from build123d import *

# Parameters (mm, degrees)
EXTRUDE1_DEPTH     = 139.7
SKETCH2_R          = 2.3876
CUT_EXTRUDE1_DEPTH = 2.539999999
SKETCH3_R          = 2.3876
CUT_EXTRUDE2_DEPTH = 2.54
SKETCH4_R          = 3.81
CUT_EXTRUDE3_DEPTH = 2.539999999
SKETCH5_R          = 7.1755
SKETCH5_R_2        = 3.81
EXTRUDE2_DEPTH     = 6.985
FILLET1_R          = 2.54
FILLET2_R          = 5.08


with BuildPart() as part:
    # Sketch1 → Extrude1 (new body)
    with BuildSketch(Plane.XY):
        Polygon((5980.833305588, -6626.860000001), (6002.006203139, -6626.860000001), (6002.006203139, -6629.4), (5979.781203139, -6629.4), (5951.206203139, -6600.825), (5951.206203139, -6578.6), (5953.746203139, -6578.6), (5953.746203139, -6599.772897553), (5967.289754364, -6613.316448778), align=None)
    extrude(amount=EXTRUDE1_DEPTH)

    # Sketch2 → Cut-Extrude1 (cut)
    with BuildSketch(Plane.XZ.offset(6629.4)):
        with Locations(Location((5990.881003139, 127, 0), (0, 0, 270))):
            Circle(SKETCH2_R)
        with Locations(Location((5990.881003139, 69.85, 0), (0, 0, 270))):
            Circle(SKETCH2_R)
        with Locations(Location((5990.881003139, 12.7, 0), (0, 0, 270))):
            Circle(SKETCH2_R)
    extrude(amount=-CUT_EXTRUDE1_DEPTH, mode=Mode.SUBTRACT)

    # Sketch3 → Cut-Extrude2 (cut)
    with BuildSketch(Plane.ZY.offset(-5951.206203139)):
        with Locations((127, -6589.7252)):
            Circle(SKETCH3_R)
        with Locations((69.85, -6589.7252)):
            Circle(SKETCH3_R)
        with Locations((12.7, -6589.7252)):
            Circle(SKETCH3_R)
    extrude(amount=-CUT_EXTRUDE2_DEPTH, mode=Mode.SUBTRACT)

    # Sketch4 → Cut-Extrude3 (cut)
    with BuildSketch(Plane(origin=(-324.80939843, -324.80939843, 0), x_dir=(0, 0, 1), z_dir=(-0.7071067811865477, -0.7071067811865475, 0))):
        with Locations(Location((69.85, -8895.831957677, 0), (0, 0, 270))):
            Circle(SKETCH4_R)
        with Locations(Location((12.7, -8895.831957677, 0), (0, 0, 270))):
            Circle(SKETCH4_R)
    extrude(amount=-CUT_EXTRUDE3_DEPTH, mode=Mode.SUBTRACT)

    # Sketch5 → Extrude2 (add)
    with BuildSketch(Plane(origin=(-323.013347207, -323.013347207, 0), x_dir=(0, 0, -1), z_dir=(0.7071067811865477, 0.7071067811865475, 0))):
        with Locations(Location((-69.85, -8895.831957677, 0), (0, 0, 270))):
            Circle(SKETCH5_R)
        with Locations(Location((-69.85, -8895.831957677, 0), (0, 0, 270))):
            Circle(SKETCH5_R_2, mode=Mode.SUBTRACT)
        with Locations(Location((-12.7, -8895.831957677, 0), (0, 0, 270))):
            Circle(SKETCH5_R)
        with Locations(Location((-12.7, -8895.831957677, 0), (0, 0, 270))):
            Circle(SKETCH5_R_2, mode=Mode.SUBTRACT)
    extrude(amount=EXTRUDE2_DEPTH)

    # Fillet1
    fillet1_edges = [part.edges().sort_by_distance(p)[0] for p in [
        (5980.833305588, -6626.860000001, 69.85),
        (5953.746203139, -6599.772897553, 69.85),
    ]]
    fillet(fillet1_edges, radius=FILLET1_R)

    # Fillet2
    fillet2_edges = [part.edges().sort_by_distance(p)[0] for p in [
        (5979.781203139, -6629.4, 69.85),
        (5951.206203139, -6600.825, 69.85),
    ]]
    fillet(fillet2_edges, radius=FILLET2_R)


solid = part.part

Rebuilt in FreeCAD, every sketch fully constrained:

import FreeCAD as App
import Part
import Sketcher
from FreeCAD import Vector
Q = App.Units.Quantity


def edges_at(feature, points):
    """Names of the edges that pass closest to the given points."""
    edges = feature.Shape.Edges
    near = lambda p: min(range(len(edges)), key=lambda i: edges[i].distToShape(Part.Vertex(*p))[0])
    return sorted({f"Edge{near(p) + 1}" for p in points})

doc = App.newDocument("Part")
body = doc.addObject("PartDesign::Body", "Body")

sketch1 = body.newObject("Sketcher::SketchObject", "Sketch")
sketch1.AttachmentSupport = (doc.getObject("XY_Plane"), [""])
sketch1.MapMode = "FlatFace"
sketch1.addGeometry(Part.LineSegment(Vector(6002, -6626.9, 0), Vector(5980.8, -6626.9, 0)), False)
sketch1.addGeometry(Part.LineSegment(Vector(5980.8, -6626.9, 0), Vector(5967.3, -6613.3, 0)), False)
sketch1.addGeometry(Part.LineSegment(Vector(5967.3, -6613.3, 0), Vector(5953.7, -6599.8, 0)), False)
sketch1.addGeometry(Part.LineSegment(Vector(5953.7, -6599.8, 0), Vector(5953.7, -6578.6, 0)), False)
sketch1.addGeometry(Part.LineSegment(Vector(5953.7, -6578.6, 0), Vector(5951.2, -6578.6, 0)), False)
sketch1.addGeometry(Part.LineSegment(Vector(5951.2, -6578.6, 0), Vector(5951.2, -6600.8, 0)), False)
sketch1.addGeometry(Part.LineSegment(Vector(5951.2, -6600.8, 0), Vector(5979.8, -6629.4, 0)), False)
sketch1.addGeometry(Part.LineSegment(Vector(5979.8, -6629.4, 0), Vector(6002, -6629.4, 0)), False)
sketch1.addGeometry(Part.LineSegment(Vector(6002, -6629.4, 0), Vector(6002, -6626.9, 0)), False)
sketch1.addConstraint(Sketcher.Constraint("Coincident", 0, 2, 1, 1))
sketch1.addConstraint(Sketcher.Constraint("Coincident", 1, 2, 2, 1))
sketch1.addConstraint(Sketcher.Constraint("Coincident", 2, 2, 3, 1))
sketch1.addConstraint(Sketcher.Constraint("Coincident", 3, 2, 4, 1))
sketch1.addConstraint(Sketcher.Constraint("Coincident", 4, 2, 5, 1))
sketch1.addConstraint(Sketcher.Constraint("Coincident", 5, 2, 6, 1))
sketch1.addConstraint(Sketcher.Constraint("Coincident", 6, 2, 7, 1))
sketch1.addConstraint(Sketcher.Constraint("Coincident", 7, 2, 8, 1))
sketch1.addConstraint(Sketcher.Constraint("Coincident", 8, 2, 0, 1))
sketch1.addConstraint(Sketcher.Constraint("Horizontal", 0))
sketch1.addConstraint(Sketcher.Constraint("Vertical", 3))
sketch1.addConstraint(Sketcher.Constraint("Horizontal", 4))
sketch1.addConstraint(Sketcher.Constraint("Vertical", 5))
sketch1.addConstraint(Sketcher.Constraint("Horizontal", 7))
sketch1.addConstraint(Sketcher.Constraint("Vertical", 8))
sketch1.addConstraint(Sketcher.Constraint("Parallel", 1, 2))
sketch1.addConstraint(Sketcher.Constraint("Parallel", 2, 6))
sketch1.addConstraint(Sketcher.Constraint("Equal", 0, 3))
sketch1.addConstraint(Sketcher.Constraint("Equal", 7, 5))
sketch1.addConstraint(Sketcher.Constraint("Equal", 4, 8))
sketch1.addConstraint(Sketcher.Constraint("Equal", 1, 2))
sketch1.addConstraint(Sketcher.Constraint("DistanceX", 4, 2, 4, 1, Q("0.1 in")))
sketch1.addConstraint(Sketcher.Constraint("DistanceY", 3, 2, -1, 1, Q("259 in")))
sketch1.addConstraint(Sketcher.Constraint("DistanceY", 6, 2, -1, 1, Q("261 in")))
sketch1.addConstraint(Sketcher.Constraint("DistanceX", 7, 1, 7, 2, Q("0.875 in")))
sketch1.addConstraint(Sketcher.Constraint("DistanceX", 0, 2, 0, 1, Q("21.172898 mm")))
sketch1.addConstraint(Sketcher.Constraint("DistanceX", -1, 1, 0, 2, Q("5980.833306 mm")))
pad1 = body.newObject("PartDesign::Pad", "Pad")
pad1.Profile = sketch1
pad1.Length = Q("5.5 in")

sketch2 = body.newObject("Sketcher::SketchObject", "Sketch001")
sketch2.AttachmentSupport = (doc.getObject("XZ_Plane"), [""])
sketch2.MapMode = "FlatFace"
sketch2.AttachmentOffset = App.Placement(Vector(0, 0, 261 * 25.4), App.Rotation())
sketch2.addGeometry(Part.Circle(Vector(5990.9, 127, 0), Vector(0, 0, 1), 2.4), False)
sketch2.addGeometry(Part.Circle(Vector(5990.9, 69.8, 0), Vector(0, 0, 1), 2.4), False)
sketch2.addGeometry(Part.Circle(Vector(5990.9, 12.7, 0), Vector(0, 0, 1), 2.4), False)
sketch2.addConstraint(Sketcher.Constraint("Equal", 0, 1))
sketch2.addConstraint(Sketcher.Constraint("Equal", 1, 2))
sketch2.addConstraint(Sketcher.Constraint("Vertical", 0, 3, 1, 3))
sketch2.addConstraint(Sketcher.Constraint("Vertical", 1, 3, 2, 3))
sketch2.addConstraint(Sketcher.Constraint("Diameter", 0, Q("0.188 in")))
sketch2.addConstraint(Sketcher.Constraint("DistanceY", -1, 1, 0, 3, Q("5 in")))
sketch2.addConstraint(Sketcher.Constraint("DistanceY", -1, 1, 2, 3, Q("0.5 in")))
sketch2.addConstraint(Sketcher.Constraint("DistanceY", -1, 1, 1, 3, Q("2.75 in")))
sketch2.addConstraint(Sketcher.Constraint("DistanceX", -1, 1, 0, 3, Q("5990.881003 mm")))
pocket1 = body.newObject("PartDesign::Pocket", "Pocket")
pocket1.Profile = sketch2
pocket1.Length = Q("0.1 in")

sketch3 = body.newObject("Sketcher::SketchObject", "Sketch002")
sketch3.AttachmentSupport = (doc.getObject("YZ_Plane"), [""])
sketch3.MapMode = "FlatFace"
sketch3.AttachmentOffset = App.Placement(Vector(0, 0, 5951.206203), App.Rotation())
sketch3.addGeometry(Part.Circle(Vector(-6589.7, 127, 0), Vector(0, 0, 1), 2.4), False)
sketch3.addGeometry(Part.Circle(Vector(-6589.7, 69.8, 0), Vector(0, 0, 1), 2.4), False)
sketch3.addGeometry(Part.Circle(Vector(-6589.7, 12.7, 0), Vector(0, 0, 1), 2.4), False)
sketch3.addConstraint(Sketcher.Constraint("Equal", 0, 1))
sketch3.addConstraint(Sketcher.Constraint("Equal", 1, 2))
sketch3.addConstraint(Sketcher.Constraint("Vertical", 0, 3, 1, 3))
sketch3.addConstraint(Sketcher.Constraint("Vertical", 1, 3, 2, 3))
sketch3.addConstraint(Sketcher.Constraint("Diameter", 0, Q("0.188 in")))
sketch3.addConstraint(Sketcher.Constraint("DistanceY", -1, 1, 0, 3, Q("5 in")))
sketch3.addConstraint(Sketcher.Constraint("DistanceY", -1, 1, 2, 3, Q("0.5 in")))
sketch3.addConstraint(Sketcher.Constraint("DistanceY", -1, 1, 1, 3, Q("2.75 in")))
sketch3.addConstraint(Sketcher.Constraint("DistanceX", 0, 3, -1, 1, Q("259.438 in")))
pocket2 = body.newObject("PartDesign::Pocket", "Pocket001")
pocket2.Profile = sketch3
pocket2.Length = Q("0.1 in")
pocket2.Reversed = True

sketch4 = body.newObject("Sketcher::SketchObject", "Sketch003")
sketch4.Placement = App.Placement(Vector(-324.809398, -324.809398, 0), App.Rotation(Vector(0, 0, 1), Vector(-0.707106781, 0.707106781, 0), Vector(-0.707106781, -0.707106781, 0), "ZXY"))
sketch4.addGeometry(Part.Circle(Vector(69.8, -8895.8, 0), Vector(0, 0, 1), 3.8), False)
sketch4.addGeometry(Part.Circle(Vector(12.7, -8895.8, 0), Vector(0, 0, 1), 3.8), False)
sketch4.addConstraint(Sketcher.Constraint("Equal", 0, 1))
sketch4.addConstraint(Sketcher.Constraint("Horizontal", 0, 3, 1, 3))
sketch4.addConstraint(Sketcher.Constraint("Diameter", 0, Q("0.3 in")))
sketch4.addConstraint(Sketcher.Constraint("DistanceX", -1, 1, 1, 3, Q("0.5 in")))
sketch4.addConstraint(Sketcher.Constraint("DistanceX", -1, 1, 0, 3, Q("2.75 in")))
sketch4.addConstraint(Sketcher.Constraint("DistanceY", 0, 3, -1, 1, Q("8895.831953 mm")))
pocket3 = body.newObject("PartDesign::Pocket", "Pocket002")
pocket3.Profile = sketch4
pocket3.Length = Q("0.1 in")

sketch5 = body.newObject("Sketcher::SketchObject", "Sketch004")
sketch5.Placement = App.Placement(Vector(-323.013347, -323.013347, 0), App.Rotation(Vector(0, 0, -1), Vector(-0.707106781, 0.707106781, 0), Vector(0.707106781, 0.707106781, 0), "ZXY"))
sketch5.addGeometry(Part.Circle(Vector(-69.8, -8895.8, 0), Vector(0, 0, 1), 7.2), False)
sketch5.addGeometry(Part.Circle(Vector(-69.8, -8895.8, 0), Vector(0, 0, 1), 3.8), False)
sketch5.addGeometry(Part.Circle(Vector(-12.7, -8895.8, 0), Vector(0, 0, 1), 7.2), False)
sketch5.addGeometry(Part.Circle(Vector(-12.7, -8895.8, 0), Vector(0, 0, 1), 3.8), False)
sketch5.addConstraint(Sketcher.Constraint("Coincident", 1, 3, 0, 3))
sketch5.addConstraint(Sketcher.Constraint("Coincident", 3, 3, 2, 3))
sketch5.addConstraint(Sketcher.Constraint("Equal", 0, 2))
sketch5.addConstraint(Sketcher.Constraint("Equal", 1, 3))
sketch5.addConstraint(Sketcher.Constraint("Horizontal", 1, 3, 2, 3))
sketch5.addConstraint(Sketcher.Constraint("Diameter", 1, Q("0.3 in")))
sketch5.addConstraint(Sketcher.Constraint("Diameter", 0, Q("0.565 in")))
sketch5.addConstraint(Sketcher.Constraint("DistanceX", 2, 3, -1, 1, Q("0.5 in")))
sketch5.addConstraint(Sketcher.Constraint("DistanceX", 0, 3, -1, 1, Q("2.75 in")))
sketch5.addConstraint(Sketcher.Constraint("DistanceY", 0, 3, -1, 1, Q("8895.831953 mm")))
pad2 = body.newObject("PartDesign::Pad", "Pad001")
pad2.Profile = sketch5
pad2.Length = Q("0.275 in")
doc.recompute()

fillet = body.newObject("PartDesign::Fillet", "Fillet")
fillet.Base = (pad2, edges_at(pad2, [(5980.833, -6626.86, 69.85), (5953.746, -6599.773, 69.85)]))
fillet.Radius = Q("0.1 in")
doc.recompute()

fillet2 = body.newObject("PartDesign::Fillet", "Fillet001")
fillet2.Base = (fillet, edges_at(fillet, [(5979.781, -6629.4, 69.85), (5951.206, -6600.825, 69.85)]))
fillet2.Radius = Q("0.2 in")

doc.recompute()
